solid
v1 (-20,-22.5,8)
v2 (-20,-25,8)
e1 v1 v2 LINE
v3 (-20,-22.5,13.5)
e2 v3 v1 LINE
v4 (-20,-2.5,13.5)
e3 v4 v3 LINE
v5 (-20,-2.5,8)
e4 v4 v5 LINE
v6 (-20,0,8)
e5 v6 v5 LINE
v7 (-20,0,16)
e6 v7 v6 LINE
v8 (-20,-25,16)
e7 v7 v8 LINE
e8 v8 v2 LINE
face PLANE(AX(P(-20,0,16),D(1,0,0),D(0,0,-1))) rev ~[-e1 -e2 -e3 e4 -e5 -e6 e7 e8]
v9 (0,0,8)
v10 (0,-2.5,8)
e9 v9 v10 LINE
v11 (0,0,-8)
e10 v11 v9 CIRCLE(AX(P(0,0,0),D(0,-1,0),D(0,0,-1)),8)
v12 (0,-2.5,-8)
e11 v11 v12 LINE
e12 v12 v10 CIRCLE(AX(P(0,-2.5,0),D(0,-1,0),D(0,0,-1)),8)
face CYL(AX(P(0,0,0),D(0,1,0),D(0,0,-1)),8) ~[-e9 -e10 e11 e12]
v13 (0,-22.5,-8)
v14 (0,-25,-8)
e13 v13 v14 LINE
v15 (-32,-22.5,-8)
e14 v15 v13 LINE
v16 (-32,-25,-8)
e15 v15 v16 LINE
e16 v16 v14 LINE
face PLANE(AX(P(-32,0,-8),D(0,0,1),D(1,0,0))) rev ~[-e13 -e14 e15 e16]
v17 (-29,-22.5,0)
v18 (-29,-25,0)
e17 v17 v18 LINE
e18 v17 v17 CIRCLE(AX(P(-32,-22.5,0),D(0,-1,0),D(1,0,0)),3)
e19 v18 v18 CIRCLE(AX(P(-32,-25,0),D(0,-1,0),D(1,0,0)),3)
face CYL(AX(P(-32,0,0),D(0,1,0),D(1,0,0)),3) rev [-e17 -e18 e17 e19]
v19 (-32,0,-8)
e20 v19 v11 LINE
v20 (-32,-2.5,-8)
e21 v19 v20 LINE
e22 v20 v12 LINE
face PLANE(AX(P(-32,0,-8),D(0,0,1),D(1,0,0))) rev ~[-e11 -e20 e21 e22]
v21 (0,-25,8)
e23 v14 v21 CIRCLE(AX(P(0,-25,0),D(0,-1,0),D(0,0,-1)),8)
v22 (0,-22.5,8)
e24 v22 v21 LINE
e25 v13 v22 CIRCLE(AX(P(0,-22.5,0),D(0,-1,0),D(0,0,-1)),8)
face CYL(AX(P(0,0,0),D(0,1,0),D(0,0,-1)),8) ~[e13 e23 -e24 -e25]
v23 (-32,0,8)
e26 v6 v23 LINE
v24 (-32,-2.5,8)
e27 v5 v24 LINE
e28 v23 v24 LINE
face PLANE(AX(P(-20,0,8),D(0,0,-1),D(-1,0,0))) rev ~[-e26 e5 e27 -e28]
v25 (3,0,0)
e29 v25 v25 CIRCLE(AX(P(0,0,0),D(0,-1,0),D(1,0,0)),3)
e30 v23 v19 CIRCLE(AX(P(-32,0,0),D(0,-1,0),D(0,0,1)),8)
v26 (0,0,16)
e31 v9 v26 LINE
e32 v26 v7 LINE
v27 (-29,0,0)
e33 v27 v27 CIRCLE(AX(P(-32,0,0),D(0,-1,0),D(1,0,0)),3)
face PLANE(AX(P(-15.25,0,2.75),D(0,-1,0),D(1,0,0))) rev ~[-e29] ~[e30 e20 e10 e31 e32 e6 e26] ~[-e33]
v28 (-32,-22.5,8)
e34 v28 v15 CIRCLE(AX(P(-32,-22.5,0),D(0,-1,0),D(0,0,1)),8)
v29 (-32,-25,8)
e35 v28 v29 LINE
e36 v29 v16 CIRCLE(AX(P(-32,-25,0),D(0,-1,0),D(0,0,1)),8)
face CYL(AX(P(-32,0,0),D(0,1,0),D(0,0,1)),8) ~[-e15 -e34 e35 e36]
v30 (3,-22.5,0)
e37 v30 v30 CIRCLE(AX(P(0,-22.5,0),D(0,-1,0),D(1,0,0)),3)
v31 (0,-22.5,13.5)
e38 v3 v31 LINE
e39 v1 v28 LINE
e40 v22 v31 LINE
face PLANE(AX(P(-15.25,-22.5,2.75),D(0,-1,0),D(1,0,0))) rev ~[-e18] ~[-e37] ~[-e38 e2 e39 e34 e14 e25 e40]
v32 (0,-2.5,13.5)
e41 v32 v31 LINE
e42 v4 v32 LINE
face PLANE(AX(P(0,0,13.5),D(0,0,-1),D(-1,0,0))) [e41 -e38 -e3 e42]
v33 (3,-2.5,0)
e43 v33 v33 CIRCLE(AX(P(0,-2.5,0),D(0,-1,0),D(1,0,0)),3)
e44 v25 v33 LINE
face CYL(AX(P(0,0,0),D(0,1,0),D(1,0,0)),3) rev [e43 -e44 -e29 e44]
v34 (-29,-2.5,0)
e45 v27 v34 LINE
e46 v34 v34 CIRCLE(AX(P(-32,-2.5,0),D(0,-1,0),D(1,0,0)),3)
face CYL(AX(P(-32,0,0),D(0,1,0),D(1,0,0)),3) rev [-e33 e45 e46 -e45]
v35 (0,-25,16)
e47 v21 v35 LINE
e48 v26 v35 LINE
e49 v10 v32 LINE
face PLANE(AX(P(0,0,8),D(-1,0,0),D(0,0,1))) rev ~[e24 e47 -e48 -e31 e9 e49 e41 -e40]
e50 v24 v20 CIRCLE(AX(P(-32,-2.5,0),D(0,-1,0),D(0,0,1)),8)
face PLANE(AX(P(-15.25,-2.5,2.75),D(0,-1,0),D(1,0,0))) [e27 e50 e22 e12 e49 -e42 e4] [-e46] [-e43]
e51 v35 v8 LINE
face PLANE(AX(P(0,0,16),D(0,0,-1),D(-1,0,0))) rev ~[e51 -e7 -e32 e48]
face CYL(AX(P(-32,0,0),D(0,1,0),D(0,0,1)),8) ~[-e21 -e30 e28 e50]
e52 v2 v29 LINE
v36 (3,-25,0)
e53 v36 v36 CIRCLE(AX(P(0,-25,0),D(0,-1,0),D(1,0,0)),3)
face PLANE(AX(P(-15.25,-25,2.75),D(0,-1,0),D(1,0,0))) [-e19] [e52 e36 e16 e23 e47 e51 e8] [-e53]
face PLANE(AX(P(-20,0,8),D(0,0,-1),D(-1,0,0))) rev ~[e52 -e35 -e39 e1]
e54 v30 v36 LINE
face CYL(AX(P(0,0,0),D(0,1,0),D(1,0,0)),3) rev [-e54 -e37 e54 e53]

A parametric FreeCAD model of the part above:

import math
import FreeCAD as App
import Part
import Sketcher
from FreeCAD import Vector
Q = App.Units.Quantity


def faces_at(feature, points):
    """Names of the faces that lie closest to the given points."""
    faces = feature.Shape.Faces
    near = lambda p: min(range(len(faces)), key=lambda i: faces[i].distToShape(Part.Vertex(*p))[0])
    return sorted({f"Face{near(p) + 1}" for p in points})

doc = App.newDocument("Part")
body = doc.addObject("PartDesign::Body", "Body")

sketch1 = body.newObject("Sketcher::SketchObject", "Sketch")
sketch1.AttachmentSupport = (doc.getObject("XZ_Plane"), [""])
sketch1.MapMode = "FlatFace"
sketch1.addGeometry([
    Part.LineSegment(Vector(0, 16, 0), Vector(-20, 16, 0)),
    Part.LineSegment(Vector(-20, 16, 0), Vector(-20, 8, 0)),
    Part.LineSegment(Vector(-20, 8, 0), Vector(-32, 8, 0)),
    Part.ArcOfCircle(Part.Circle(Vector(-32, 0, 0), Vector(0, 0, 1), 8), math.radians(90), math.radians(270)),
    Part.LineSegment(Vector(-32, -8, 0), Vector(0, -8, 0)),
    Part.ArcOfCircle(Part.Circle(Vector(0, 0, 0), Vector(0, 0, 1), 8), math.radians(-90), math.radians(90)),
    Part.LineSegment(Vector(0, 8, 0), Vector(0, 16, 0)),
    Part.Circle(Vector(-32, 0, 0), Vector(0, 0, 1), 3),
    Part.Circle(Vector(0, 0, 0), Vector(0, 0, 1), 3),
], False)
sketch1.addConstraint([
    Sketcher.Constraint("Coincident", 0, 2, 1, 1),
    Sketcher.Constraint("Coincident", 1, 2, 2, 1),
    Sketcher.Constraint("Tangent", 2, 2, 3, 1),
    Sketcher.Constraint("Tangent", 3, 2, 4, 1),
    Sketcher.Constraint("Tangent", 4, 2, 5, 1),
    Sketcher.Constraint("Coincident", 5, 2, 6, 1),
    Sketcher.Constraint("Coincident", 6, 2, 0, 1),
    Sketcher.Constraint("Horizontal", 0),
    Sketcher.Constraint("Vertical", 1),
    Sketcher.Constraint("Horizontal", 2),
    Sketcher.Constraint("Horizontal", 4),
    Sketcher.Constraint("Vertical", 6),
    Sketcher.Constraint("Coincident", 5, 3, -1, 1),
    Sketcher.Constraint("Coincident", 8, 3, -1, 1),
    Sketcher.Constraint("Coincident", 7, 3, 3, 3),
    Sketcher.Constraint("Equal", 3, 5),
    Sketcher.Constraint("Equal", 7, 8),
    Sketcher.Constraint("PointOnObject", 5, 2, -2),
    Sketcher.Constraint("Diameter", 7, Q("6 mm")),
    Sketcher.Constraint("Radius", 3, Q("8 mm")),
    Sketcher.Constraint("DistanceX", 0, 2, 0, 1, Q("20 mm")),
    Sketcher.Constraint("DistanceX", 2, 2, 2, 1, Q("12 mm")),
    Sketcher.Constraint("DistanceY", 1, 2, 1, 1, Q("8 mm")),
])
pad1 = body.newObject("PartDesign::Pad", "Pad")
pad1.Profile = sketch1
pad1.Length = 25
doc.recompute()

thickness = body.newObject("PartDesign::Thickness", "Thickness")
thickness.Base = (pad1, faces_at(pad1, [
    (-35, -12.5, 0),
    (-3, -12.5, 0),
    (-16, -12.5, -8),
    (-40, -12.5, 0),
    (8, -12.5, 0),
    (-26, -12.5, 8),
    (0, -12.5, 12),
    (-20, -12.5, 12),
]))
thickness.Value = 2.5
thickness.Reversed = True
thickness.Join = "Arc"

doc.recompute()
